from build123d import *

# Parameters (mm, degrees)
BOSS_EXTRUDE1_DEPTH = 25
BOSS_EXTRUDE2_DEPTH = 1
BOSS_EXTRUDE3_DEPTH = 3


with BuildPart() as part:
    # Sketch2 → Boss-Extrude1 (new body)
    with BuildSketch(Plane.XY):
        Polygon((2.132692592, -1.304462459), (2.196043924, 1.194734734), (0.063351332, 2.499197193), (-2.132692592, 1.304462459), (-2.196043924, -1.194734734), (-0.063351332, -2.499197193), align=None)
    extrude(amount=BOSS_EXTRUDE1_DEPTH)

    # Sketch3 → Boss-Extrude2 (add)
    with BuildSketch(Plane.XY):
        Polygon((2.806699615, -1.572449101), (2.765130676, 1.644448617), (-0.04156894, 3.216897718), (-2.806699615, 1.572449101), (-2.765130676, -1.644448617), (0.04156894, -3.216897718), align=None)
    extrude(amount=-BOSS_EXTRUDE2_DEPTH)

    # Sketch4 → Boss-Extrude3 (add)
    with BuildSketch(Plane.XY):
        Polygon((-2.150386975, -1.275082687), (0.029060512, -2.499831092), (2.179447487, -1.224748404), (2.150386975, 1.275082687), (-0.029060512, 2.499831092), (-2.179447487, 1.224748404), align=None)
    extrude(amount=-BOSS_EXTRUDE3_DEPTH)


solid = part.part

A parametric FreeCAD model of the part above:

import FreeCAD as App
import Part
import Sketcher
from FreeCAD import Vector

doc = App.newDocument("Part")
params = doc.addObject("Spreadsheet::Sheet", "Params")
for row, (alias, value) in enumerate([
    ("sketch1_length", "2.5 mm"),
    ("pad1_length", "25 mm"),
    ("pad2_length", "1 mm"),
    ("sketch3_length", "2.5 mm"),
    ("pad3_length", "3 mm"),
], start=1):
    params.set(f"A{row}", alias)
    params.set(f"B{row}", "=" + value)
    params.setAlias(f"B{row}", alias)

body = doc.addObject("PartDesign::Body", "Body")

sketch1 = body.newObject("Sketcher::SketchObject", "Sketch")
sketch1.AttachmentSupport = (doc.getObject("XY_Plane"), [""])
sketch1.MapMode = "FlatFace"
sketch1.addGeometry([
    Part.LineSegment(Vector(2.1, -1.3, 0), Vector(2.2, 1.2, 0)),
    Part.LineSegment(Vector(2.2, 1.2, 0), Vector(0.1, 2.5, 0)),
    Part.LineSegment(Vector(0.1, 2.5, 0), Vector(-2.1, 1.3, 0)),
    Part.LineSegment(Vector(-2.1, 1.3, 0), Vector(-2.2, -1.2, 0)),
    Part.LineSegment(Vector(-2.2, -1.2, 0), Vector(-0.1, -2.5, 0)),
    Part.LineSegment(Vector(-0.1, -2.5, 0), Vector(2.1, -1.3, 0)),
], False)
sketch1.addConstraint([
    Sketcher.Constraint("Coincident", 0, 2, 1, 1),
    Sketcher.Constraint("Coincident", 1, 2, 2, 1),
    Sketcher.Constraint("Coincident", 2, 2, 3, 1),
    Sketcher.Constraint("Coincident", 3, 2, 4, 1),
    Sketcher.Constraint("Coincident", 4, 2, 5, 1),
    Sketcher.Constraint("Coincident", 5, 2, 0, 1),
    Sketcher.Constraint("Symmetric", 0, 2, 3, 2, -1, 1),
    Sketcher.Constraint("Symmetric", 1, 2, 4, 2, -1, 1),
    Sketcher.Constraint("Symmetric", 2, 2, 5, 2, -1, 1),
    Sketcher.Constraint("Equal", 0, 1),
    Sketcher.Constraint("Equal", 1, 2),
    Sketcher.Constraint("Distance", 0, 2.5),
    Sketcher.Constraint("DistanceX", -1, 1, 1, 2, 0.063351),
    Sketcher.Constraint("DistanceX", 3, 2, 2, 2, 0.063351),
    Sketcher.Constraint("DistanceY", 3, 2, 1, 2, 3.693932),
])
sketch1.setExpression("Constraints[11]", "Params.sketch1_length")
pad1 = body.newObject("PartDesign::Pad", "Pad")
pad1.Profile = sketch1
pad1.setExpression("Length", "Params.pad1_length")

sketch2 = body.newObject("Sketcher::SketchObject", "Sketch001")
sketch2.AttachmentSupport = (doc.getObject("XY_Plane"), [""])
sketch2.MapMode = "FlatFace"
sketch2.addGeometry([
    Part.LineSegment(Vector(2.8, -1.6, 0), Vector(2.8, 1.6, 0)),
    Part.LineSegment(Vector(2.8, 1.6, 0), Vector(0, 3.2, 0)),
    Part.LineSegment(Vector(0, 3.2, 0), Vector(-2.8, 1.6, 0)),
    Part.LineSegment(Vector(-2.8, 1.6, 0), Vector(-2.8, -1.6, 0)),
    Part.LineSegment(Vector(-2.8, -1.6, 0), Vector(0, -3.2, 0)),
    Part.LineSegment(Vector(0, -3.2, 0), Vector(2.8, -1.6, 0)),
], False)
sketch2.addConstraint([
    Sketcher.Constraint("Coincident", 0, 2, 1, 1),
    Sketcher.Constraint("Coincident", 1, 2, 2, 1),
    Sketcher.Constraint("Coincident", 2, 2, 3, 1),
    Sketcher.Constraint("Coincident", 3, 2, 4, 1),
    Sketcher.Constraint("Coincident", 4, 2, 5, 1),
    Sketcher.Constraint("Coincident", 5, 2, 0, 1),
    Sketcher.Constraint("Symmetric", 0, 2, 3, 2, -1, 1),
    Sketcher.Constraint("Symmetric", 1, 2, 4, 2, -1, 1),
    Sketcher.Constraint("Symmetric", 2, 2, 5, 2, -1, 1),
    Sketcher.Constraint("Equal", 0, 1),
    Sketcher.Constraint("Equal", 1, 2),
    Sketcher.Constraint("DistanceY", 2, 2, 0, 2, 0.072),
    Sketcher.Constraint("DistanceX", 2, 2, -1, 1, 2.8067),
    Sketcher.Constraint("DistanceX", 1, 2, 0, 2, 2.8067),
    Sketcher.Constraint("DistanceY", 5, 2, 2, 2, 3.144898),
])
pad2 = body.newObject("PartDesign::Pad", "Pad001")
pad2.Profile = sketch2
pad2.setExpression("Length", "Params.pad2_length")
pad2.Reversed = True

sketch3 = body.newObject("Sketcher::SketchObject", "Sketch002")
sketch3.AttachmentSupport = (doc.getObject("XY_Plane"), [""])
sketch3.MapMode = "FlatFace"
sketch3.addGeometry([
    Part.LineSegment(Vector(-2.2, -1.3, 0), Vector(0, -2.5, 0)),
    Part.LineSegment(Vector(0, -2.5, 0), Vector(2.2, -1.2, 0)),
    Part.LineSegment(Vector(2.2, -1.2, 0), Vector(2.2, 1.3, 0)),
    Part.LineSegment(Vector(2.2, 1.3, 0), Vector(0, 2.5, 0)),
    Part.LineSegment(Vector(0, 2.5, 0), Vector(-2.2, 1.2, 0)),
    Part.LineSegment(Vector(-2.2, 1.2, 0), Vector(-2.2, -1.3, 0)),
], False)
sketch3.addConstraint([
    Sketcher.Constraint("Coincident", 0, 2, 1, 1),
    Sketcher.Constraint("Coincident", 1, 2, 2, 1),
    Sketcher.Constraint("Coincident", 2, 2, 3, 1),
    Sketcher.Constraint("Coincident", 3, 2, 4, 1),
    Sketcher.Constraint("Coincident", 4, 2, 5, 1),
    Sketcher.Constraint("Coincident", 5, 2, 0, 1),
    Sketcher.Constraint("Symmetric", 0, 2, 3, 2, -1, 1),
    Sketcher.Constraint("Symmetric", 1, 2, 4, 2, -1, 1),
    Sketcher.Constraint("Symmetric", 2, 2, 5, 2, -1, 1),
    Sketcher.Constraint("Equal", 0, 1),
    Sketcher.Constraint("Equal", 1, 2),
    Sketcher.Constraint("Distance", 0, 2.5),
    Sketcher.Constraint("DistanceX", -1, 1, 0, 2, 0.029061),
    Sketcher.Constraint("DistanceY", 0, 2, -1, 1, 2.499831),
    Sketcher.Constraint("DistanceY", 1, 2, -1, 1, 1.224748),
])
sketch3.setExpression("Constraints[11]", "Params.sketch3_length")
pad3 = body.newObject("PartDesign::Pad", "Pad002")
pad3.Profile = sketch3
pad3.setExpression("Length", "Params.pad3_length")
pad3.Reversed = True

doc.recompute()
